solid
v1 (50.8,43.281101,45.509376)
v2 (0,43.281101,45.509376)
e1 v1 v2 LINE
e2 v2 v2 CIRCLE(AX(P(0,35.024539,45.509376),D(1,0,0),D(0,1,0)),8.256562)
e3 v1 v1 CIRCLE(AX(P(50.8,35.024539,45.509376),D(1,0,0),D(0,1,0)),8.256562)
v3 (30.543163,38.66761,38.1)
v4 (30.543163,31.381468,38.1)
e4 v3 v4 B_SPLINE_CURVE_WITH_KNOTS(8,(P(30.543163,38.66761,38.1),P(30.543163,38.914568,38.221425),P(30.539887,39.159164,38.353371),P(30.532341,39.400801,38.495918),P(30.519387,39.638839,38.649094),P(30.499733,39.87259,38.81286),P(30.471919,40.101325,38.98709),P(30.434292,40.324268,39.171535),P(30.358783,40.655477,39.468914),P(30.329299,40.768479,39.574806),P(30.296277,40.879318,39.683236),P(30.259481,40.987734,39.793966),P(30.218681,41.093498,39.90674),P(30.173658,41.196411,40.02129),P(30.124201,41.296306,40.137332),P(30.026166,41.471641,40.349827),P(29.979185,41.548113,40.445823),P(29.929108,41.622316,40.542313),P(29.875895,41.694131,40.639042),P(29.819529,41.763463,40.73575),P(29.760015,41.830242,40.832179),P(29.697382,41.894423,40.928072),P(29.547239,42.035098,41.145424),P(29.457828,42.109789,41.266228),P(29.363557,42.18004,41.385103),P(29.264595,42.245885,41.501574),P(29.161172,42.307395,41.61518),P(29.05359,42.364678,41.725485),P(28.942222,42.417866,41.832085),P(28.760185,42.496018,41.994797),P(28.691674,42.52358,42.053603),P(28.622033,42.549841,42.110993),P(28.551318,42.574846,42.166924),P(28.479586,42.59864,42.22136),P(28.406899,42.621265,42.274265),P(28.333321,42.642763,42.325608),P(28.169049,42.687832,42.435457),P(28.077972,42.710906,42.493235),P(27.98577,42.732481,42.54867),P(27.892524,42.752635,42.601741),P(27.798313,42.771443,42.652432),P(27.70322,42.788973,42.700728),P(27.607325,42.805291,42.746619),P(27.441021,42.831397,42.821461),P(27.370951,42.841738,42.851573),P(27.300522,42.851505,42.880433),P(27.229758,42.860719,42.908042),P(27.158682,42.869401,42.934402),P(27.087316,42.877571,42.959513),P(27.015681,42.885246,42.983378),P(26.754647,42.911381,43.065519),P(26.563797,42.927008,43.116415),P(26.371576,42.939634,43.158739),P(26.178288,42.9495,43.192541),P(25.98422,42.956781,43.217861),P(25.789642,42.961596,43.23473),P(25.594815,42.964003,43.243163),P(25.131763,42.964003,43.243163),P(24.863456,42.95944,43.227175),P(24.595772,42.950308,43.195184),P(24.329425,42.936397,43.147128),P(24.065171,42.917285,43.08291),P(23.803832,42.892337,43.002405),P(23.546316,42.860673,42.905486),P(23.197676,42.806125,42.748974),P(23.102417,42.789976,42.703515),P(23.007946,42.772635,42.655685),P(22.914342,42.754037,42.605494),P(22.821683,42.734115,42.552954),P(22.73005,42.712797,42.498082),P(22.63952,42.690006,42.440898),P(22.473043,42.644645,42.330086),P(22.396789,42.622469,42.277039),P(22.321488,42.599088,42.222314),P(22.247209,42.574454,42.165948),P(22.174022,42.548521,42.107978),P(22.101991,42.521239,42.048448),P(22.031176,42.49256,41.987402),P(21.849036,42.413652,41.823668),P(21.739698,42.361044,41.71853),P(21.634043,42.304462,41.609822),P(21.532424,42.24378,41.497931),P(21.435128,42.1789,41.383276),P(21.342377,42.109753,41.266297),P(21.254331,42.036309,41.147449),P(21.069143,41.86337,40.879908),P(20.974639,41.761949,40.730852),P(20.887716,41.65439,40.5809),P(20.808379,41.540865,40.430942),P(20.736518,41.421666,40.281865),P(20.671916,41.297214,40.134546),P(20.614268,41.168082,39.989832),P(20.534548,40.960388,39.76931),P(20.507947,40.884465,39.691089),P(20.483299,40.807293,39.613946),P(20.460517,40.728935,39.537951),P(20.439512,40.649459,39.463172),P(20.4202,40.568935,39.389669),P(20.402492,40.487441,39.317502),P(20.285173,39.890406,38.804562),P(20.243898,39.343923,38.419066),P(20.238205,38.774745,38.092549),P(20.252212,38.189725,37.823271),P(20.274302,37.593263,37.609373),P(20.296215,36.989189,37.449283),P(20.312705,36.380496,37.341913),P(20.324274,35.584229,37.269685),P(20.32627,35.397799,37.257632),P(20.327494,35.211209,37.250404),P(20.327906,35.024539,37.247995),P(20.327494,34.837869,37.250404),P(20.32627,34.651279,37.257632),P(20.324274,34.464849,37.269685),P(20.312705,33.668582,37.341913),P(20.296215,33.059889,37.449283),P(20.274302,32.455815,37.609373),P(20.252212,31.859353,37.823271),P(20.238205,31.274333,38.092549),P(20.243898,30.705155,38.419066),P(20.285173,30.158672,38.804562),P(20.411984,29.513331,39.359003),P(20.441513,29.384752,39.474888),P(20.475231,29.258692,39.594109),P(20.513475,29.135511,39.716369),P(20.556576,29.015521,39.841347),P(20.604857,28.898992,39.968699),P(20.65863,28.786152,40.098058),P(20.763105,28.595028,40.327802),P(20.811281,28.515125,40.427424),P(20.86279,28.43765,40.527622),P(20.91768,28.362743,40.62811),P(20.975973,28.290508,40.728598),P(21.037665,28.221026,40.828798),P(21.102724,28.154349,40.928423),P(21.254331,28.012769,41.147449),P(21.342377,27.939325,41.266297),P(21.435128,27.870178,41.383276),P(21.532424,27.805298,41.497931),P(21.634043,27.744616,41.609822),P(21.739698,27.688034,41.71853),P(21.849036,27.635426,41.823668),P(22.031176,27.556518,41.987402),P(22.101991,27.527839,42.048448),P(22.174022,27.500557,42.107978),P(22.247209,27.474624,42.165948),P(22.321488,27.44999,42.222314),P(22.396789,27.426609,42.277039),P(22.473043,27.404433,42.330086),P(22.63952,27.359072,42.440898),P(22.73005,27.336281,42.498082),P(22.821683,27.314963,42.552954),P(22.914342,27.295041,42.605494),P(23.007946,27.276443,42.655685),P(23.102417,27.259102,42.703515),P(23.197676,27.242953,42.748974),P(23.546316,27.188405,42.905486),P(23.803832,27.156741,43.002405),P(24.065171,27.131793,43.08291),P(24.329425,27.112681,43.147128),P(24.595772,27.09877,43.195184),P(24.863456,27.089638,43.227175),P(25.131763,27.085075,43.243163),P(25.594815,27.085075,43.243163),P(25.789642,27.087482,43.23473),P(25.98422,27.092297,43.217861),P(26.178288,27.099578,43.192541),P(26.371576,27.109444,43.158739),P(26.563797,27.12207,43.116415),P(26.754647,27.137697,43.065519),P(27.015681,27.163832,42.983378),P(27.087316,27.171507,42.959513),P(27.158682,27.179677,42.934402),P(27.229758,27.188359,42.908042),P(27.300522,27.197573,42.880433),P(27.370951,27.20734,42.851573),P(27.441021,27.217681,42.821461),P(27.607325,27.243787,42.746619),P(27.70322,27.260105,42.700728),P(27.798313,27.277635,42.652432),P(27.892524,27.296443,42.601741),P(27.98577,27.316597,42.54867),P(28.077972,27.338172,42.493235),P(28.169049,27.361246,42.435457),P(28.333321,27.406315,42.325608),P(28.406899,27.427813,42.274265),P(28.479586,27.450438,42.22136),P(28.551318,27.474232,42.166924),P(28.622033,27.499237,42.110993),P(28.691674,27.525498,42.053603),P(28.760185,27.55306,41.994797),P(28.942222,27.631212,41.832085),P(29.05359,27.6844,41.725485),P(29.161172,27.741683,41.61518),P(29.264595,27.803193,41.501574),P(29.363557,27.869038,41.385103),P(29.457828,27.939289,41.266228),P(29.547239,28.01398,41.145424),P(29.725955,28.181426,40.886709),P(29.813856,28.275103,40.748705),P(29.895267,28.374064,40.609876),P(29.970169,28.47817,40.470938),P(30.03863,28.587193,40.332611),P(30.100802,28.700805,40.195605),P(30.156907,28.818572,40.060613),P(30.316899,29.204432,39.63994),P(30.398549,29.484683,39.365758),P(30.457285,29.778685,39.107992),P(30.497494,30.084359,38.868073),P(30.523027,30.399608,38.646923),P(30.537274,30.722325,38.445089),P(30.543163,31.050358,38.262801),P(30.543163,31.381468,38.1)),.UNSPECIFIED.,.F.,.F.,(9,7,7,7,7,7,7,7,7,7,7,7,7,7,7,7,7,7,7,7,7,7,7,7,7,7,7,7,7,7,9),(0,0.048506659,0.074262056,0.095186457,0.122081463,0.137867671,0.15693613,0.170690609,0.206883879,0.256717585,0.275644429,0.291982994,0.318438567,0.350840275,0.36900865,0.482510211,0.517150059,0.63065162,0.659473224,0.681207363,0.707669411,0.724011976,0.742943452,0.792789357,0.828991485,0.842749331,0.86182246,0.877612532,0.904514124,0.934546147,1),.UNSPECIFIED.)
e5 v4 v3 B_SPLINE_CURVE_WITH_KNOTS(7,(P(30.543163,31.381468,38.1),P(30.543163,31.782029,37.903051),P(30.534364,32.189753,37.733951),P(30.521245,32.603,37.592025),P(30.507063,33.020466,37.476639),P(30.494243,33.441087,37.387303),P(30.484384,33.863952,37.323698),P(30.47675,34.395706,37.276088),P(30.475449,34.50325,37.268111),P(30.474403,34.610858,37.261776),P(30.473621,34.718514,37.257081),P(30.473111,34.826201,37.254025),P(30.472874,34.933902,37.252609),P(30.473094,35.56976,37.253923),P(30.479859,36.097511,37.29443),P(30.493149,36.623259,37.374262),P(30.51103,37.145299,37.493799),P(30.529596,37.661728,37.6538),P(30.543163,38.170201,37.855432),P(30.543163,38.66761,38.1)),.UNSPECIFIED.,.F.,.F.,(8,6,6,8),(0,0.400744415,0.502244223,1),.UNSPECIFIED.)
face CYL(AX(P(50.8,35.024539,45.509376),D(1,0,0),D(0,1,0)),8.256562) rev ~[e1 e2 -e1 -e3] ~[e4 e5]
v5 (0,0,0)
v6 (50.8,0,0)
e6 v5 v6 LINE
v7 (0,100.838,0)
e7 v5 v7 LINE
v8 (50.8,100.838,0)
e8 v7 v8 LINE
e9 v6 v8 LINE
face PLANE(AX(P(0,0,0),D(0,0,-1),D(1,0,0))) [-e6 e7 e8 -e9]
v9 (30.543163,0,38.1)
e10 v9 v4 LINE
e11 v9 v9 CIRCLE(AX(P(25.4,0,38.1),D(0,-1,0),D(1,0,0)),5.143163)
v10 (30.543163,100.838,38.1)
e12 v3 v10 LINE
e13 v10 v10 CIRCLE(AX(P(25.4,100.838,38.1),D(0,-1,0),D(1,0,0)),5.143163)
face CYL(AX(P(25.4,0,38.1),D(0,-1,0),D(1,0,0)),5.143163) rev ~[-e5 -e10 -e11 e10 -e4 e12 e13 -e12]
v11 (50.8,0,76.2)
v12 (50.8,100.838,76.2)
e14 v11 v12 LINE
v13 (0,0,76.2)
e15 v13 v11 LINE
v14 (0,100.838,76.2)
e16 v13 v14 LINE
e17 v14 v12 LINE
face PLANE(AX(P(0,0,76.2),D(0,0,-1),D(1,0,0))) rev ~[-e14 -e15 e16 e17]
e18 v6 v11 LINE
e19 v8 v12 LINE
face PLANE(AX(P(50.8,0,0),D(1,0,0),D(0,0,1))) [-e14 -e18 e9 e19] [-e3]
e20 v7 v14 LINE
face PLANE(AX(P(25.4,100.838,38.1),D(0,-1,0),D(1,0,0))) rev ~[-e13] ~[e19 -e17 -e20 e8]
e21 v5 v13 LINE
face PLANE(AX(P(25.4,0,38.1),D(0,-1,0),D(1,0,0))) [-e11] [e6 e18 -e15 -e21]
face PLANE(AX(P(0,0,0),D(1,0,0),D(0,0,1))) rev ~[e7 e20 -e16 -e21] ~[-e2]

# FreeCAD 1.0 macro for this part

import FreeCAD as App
import Part
import Sketcher
from FreeCAD import Vector
Q = App.Units.Quantity

doc = App.newDocument("Part")
body = doc.addObject("PartDesign::Body", "Body")

# Sketch on XZ plane
sketch1 = body.newObject("Sketcher::SketchObject", "Sketch")
sketch1.AttachmentSupport = (doc.getObject("XZ_Plane"), [""])
sketch1.MapMode = "FlatFace"
sketch1.addGeometry([
    Part.LineSegment(Vector(0, 76.2, 0), Vector(0, 0, 0)),  # 0
    Part.LineSegment(Vector(0, 0, 0), Vector(50.8, 0, 0)),  # 1
    Part.LineSegment(Vector(50.8, 0, 0), Vector(50.8, 76.2, 0)),  # 2
    Part.LineSegment(Vector(50.8, 76.2, 0), Vector(0, 76.2, 0)),  # 3
    Part.Circle(Vector(25.4, 38.1, 0), Vector(0, 0, 1), 5.143163),  # 4
], False)
sketch1.addConstraint([
    Sketcher.Constraint("Coincident", 0, 2, 1, 1),
    Sketcher.Constraint("Coincident", 1, 2, 2, 1),
    Sketcher.Constraint("Coincident", 2, 2, 3, 1),
    Sketcher.Constraint("Coincident", 3, 2, 0, 1),
    Sketcher.Constraint("Vertical", 0),
    Sketcher.Constraint("Horizontal", 1),
    Sketcher.Constraint("Vertical", 2),
    Sketcher.Constraint("Horizontal", 3),
    Sketcher.Constraint("Coincident", 0, 2, -1, 1),
    Sketcher.Constraint("DistanceX", 1, 1, 1, 2, Q("2 in")),
    Sketcher.Constraint("DistanceY", 0, 2, 0, 1, Q("3 in")),
    Sketcher.Constraint("DistanceX", -1, 1, 4, 3, Q("1 in")),
    Sketcher.Constraint("DistanceY", -1, 1, 4, 3, Q("1.5 in")),
    Sketcher.Constraint("Diameter", 4, Q("10.286326 mm")),
])
pad1 = body.newObject("PartDesign::Pad", "Pad")
pad1.Profile = sketch1
pad1.Length = Q("3.97 in")
pad1.Reversed = True

# Sketch on YZ plane
sketch2 = body.newObject("Sketcher::SketchObject", "Sketch001")
sketch2.AttachmentSupport = (doc.getObject("YZ_Plane"), [""])
sketch2.MapMode = "FlatFace"
sketch2.AttachmentOffset = App.Placement(Vector(0, 0, 2 * 25.4), App.Rotation())
sketch2.addGeometry(Part.Circle(Vector(35.024539, 45.509376, 0), Vector(0, 0, 1), 8.256562), False)
sketch2.addConstraint([
    Sketcher.Constraint("Diameter", 0, Q("16.513124 mm")),
    Sketcher.Constraint("DistanceX", -1, 1, 0, 3, Q("35.024539 mm")),
    Sketcher.Constraint("DistanceY", -1, 1, 0, 3, Q("45.509376 mm")),
])
pocket1 = body.newObject("PartDesign::Pocket", "Pocket")
pocket1.Profile = sketch2
pocket1.Length = Q("3.86 in")

doc.recompute()
